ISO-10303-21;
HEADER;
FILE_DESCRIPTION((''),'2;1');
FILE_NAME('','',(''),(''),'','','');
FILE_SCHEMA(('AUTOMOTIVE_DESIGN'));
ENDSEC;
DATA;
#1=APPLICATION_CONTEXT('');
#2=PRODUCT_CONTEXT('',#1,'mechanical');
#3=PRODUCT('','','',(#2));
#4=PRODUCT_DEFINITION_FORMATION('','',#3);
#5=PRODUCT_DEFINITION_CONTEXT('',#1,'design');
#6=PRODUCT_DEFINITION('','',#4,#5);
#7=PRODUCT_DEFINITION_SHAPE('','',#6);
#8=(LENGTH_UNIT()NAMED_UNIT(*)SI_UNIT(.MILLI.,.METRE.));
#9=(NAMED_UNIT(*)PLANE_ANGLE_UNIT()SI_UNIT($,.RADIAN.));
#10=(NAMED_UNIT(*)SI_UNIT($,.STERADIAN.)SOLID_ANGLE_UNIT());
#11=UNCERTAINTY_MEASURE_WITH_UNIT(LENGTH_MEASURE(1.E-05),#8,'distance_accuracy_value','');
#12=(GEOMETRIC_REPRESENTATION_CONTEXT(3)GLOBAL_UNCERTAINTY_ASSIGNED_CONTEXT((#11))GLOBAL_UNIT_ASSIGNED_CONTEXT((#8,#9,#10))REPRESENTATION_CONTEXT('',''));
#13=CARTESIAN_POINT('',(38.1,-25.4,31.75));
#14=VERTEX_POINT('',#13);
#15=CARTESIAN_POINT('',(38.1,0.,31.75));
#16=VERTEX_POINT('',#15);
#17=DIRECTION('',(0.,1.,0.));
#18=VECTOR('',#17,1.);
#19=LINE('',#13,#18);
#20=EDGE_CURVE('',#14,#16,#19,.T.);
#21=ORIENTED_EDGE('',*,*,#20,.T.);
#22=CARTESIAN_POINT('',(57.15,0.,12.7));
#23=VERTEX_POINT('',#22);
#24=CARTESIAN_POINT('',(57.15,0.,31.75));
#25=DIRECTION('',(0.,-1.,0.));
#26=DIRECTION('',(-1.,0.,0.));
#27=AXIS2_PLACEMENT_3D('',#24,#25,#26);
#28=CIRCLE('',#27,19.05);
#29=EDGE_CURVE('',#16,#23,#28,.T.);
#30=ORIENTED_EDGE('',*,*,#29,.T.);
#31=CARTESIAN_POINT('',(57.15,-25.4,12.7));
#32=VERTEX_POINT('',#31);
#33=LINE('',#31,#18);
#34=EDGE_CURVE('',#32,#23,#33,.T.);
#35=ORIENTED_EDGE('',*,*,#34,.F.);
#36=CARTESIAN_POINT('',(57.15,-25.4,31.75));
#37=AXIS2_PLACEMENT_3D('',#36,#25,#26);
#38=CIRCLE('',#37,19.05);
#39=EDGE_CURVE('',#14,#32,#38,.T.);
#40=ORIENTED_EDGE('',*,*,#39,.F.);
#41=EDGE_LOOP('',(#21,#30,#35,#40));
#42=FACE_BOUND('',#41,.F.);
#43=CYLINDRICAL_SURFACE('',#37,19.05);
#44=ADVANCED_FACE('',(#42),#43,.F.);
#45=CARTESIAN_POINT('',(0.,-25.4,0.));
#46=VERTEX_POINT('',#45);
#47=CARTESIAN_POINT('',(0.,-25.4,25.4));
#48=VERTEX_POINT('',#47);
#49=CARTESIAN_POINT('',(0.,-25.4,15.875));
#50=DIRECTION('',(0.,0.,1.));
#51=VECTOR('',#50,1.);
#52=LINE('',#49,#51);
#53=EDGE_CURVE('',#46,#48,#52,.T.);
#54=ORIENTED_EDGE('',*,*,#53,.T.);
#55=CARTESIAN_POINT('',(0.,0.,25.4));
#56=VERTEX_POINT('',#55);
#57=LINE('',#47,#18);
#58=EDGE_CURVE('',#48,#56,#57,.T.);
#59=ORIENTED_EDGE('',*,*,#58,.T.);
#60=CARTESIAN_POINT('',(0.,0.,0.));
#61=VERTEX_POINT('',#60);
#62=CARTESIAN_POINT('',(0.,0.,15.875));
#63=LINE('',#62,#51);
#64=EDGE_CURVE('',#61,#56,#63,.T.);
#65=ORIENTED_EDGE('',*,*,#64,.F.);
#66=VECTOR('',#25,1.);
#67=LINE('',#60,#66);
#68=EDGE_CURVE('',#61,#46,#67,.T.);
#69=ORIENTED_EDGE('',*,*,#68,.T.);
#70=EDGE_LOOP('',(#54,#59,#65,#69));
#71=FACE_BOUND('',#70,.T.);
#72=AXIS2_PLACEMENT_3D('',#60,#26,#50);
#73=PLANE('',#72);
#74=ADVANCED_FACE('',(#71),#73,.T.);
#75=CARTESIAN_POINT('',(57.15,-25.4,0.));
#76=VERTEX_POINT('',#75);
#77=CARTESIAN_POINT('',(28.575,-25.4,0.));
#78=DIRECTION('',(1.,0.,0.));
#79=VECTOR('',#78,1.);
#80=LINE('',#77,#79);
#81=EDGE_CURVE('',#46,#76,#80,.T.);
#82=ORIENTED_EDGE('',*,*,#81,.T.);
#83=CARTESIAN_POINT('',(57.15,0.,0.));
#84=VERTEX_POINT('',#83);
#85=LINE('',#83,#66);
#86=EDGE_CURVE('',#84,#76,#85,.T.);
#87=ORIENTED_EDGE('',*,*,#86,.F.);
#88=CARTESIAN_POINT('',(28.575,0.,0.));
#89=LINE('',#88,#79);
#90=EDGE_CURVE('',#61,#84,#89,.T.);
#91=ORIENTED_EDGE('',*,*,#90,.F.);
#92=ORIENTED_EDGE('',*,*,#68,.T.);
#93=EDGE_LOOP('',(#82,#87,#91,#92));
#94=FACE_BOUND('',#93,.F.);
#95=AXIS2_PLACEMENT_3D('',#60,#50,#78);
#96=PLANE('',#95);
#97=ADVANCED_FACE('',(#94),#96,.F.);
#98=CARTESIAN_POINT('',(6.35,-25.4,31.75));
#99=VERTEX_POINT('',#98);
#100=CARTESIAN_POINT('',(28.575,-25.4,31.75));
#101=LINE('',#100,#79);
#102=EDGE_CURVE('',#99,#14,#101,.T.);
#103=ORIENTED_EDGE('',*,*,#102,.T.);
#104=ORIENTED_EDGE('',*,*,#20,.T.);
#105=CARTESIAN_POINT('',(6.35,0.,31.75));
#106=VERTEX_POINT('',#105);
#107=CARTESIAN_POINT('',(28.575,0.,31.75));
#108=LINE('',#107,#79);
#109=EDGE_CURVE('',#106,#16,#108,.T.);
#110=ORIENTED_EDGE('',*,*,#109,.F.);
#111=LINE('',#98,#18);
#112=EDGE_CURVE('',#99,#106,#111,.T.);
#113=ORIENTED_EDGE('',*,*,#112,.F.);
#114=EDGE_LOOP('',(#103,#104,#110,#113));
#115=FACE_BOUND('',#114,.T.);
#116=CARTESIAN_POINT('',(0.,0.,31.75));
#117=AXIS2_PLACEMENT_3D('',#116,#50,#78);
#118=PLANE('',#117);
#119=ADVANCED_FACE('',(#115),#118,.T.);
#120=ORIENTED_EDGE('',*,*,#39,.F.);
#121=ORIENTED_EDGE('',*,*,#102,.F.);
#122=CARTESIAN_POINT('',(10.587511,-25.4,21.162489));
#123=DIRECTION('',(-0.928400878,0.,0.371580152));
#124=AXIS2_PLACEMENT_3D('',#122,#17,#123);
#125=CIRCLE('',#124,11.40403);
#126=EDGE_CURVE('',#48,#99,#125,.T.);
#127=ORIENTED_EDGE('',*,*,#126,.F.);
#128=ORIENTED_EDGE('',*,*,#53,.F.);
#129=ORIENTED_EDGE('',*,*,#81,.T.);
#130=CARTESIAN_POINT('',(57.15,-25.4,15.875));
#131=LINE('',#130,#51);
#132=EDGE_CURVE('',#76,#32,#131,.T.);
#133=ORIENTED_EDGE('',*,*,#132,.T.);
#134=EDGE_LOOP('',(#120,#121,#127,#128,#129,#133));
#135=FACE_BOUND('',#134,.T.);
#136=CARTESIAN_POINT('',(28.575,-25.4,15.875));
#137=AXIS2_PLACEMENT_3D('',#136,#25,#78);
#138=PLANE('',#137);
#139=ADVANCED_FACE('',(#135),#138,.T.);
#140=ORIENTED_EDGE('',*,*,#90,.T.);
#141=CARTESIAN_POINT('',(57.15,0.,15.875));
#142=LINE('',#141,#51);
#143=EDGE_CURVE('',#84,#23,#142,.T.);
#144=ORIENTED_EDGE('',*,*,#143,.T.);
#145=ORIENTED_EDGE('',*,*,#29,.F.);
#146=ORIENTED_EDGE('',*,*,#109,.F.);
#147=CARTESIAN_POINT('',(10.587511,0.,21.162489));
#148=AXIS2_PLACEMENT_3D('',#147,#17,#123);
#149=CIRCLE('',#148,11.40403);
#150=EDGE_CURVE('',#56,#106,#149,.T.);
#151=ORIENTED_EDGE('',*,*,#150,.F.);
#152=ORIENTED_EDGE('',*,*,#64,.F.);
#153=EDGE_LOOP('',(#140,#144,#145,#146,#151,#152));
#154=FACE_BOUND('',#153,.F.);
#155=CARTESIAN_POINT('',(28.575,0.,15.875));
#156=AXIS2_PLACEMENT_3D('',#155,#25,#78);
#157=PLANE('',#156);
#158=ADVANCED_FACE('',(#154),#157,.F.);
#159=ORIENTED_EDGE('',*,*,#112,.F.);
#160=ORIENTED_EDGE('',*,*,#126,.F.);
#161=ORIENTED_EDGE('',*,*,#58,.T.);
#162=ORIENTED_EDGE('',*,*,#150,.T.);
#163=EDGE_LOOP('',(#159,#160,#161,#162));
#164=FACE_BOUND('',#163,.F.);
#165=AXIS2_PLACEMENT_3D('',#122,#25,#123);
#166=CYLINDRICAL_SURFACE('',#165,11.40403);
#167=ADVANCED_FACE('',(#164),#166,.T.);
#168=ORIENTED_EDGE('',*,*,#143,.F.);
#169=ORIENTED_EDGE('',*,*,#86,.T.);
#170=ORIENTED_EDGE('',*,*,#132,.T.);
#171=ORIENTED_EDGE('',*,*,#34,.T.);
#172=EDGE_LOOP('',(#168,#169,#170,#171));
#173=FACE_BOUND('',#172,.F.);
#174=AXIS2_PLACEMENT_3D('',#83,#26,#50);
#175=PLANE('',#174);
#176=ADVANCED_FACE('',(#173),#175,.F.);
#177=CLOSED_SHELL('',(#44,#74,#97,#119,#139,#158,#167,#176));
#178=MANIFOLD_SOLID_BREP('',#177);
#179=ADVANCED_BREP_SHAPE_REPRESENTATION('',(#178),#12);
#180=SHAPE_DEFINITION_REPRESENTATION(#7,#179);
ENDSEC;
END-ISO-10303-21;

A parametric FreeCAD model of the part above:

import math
import FreeCAD as App
import Part
import Sketcher

V = App.Vector
Q = App.Units.Quantity

doc = App.newDocument("Part")
body = doc.addObject("PartDesign::Body", "Body")

sketch1 = body.newObject("Sketcher::SketchObject", "Sketch")
sketch1.AttachmentSupport = (doc.getObject("XZ_Plane"), [""])
sketch1.MapMode = "FlatFace"
sketch1.addGeometry(Part.LineSegment(V(0, 32, 0), V(0, 0, 0)), False)
sketch1.addGeometry(Part.LineSegment(V(0, 0, 0), V(57, 0, 0)), False)
sketch1.addGeometry(Part.LineSegment(V(57, 0, 0), V(57, 32, 0)), False)
sketch1.addGeometry(Part.LineSegment(V(57, 32, 0), V(0, 32, 0)), False)
sketch1.addConstraint(Sketcher.Constraint("Coincident", 0, 2, 1, 1))
sketch1.addConstraint(Sketcher.Constraint("Coincident", 1, 2, 2, 1))
sketch1.addConstraint(Sketcher.Constraint("Coincident", 2, 2, 3, 1))
sketch1.addConstraint(Sketcher.Constraint("Coincident", 3, 2, 0, 1))
sketch1.addConstraint(Sketcher.Constraint("Vertical", 0))
sketch1.addConstraint(Sketcher.Constraint("Horizontal", 1))
sketch1.addConstraint(Sketcher.Constraint("Vertical", 2))
sketch1.addConstraint(Sketcher.Constraint("Horizontal", 3))
sketch1.addConstraint(Sketcher.Constraint("Coincident", 0, 2, -1, 1))
sketch1.addConstraint(Sketcher.Constraint("DistanceX", 1, 1, 1, 2, Q("2.25 in")))
sketch1.addConstraint(Sketcher.Constraint("DistanceY", 0, 2, 0, 1, Q("1.25 in")))
pad1 = body.newObject("PartDesign::Pad", "Pad")
pad1.Profile = sketch1
pad1.Length = Q("1 in")

sketch2 = body.newObject("Sketcher::SketchObject", "Sketch001")
sketch2.AttachmentSupport = (doc.getObject("XZ_Plane"), [""])
sketch2.MapMode = "FlatFace"
sketch2.AttachmentOffset = App.Placement(V(0, 0, 1 * 25.4), App.Rotation())
sketch2.addGeometry(Part.LineSegment(V(57, 32, 0), V(38, 32, 0)), False)
sketch2.addGeometry(Part.ArcOfCircle(Part.Circle(V(57, 32, 0), V(0, 0, 1), 19), math.radians(180), math.radians(270)), False)
sketch2.addGeometry(Part.LineSegment(V(57, 13, 0), V(57, 32, 0)), False)
sketch2.addGeometry(Part.ArcOfCircle(Part.Circle(V(11, 21, 0), V(0, 0, 1), 11), math.radians(112), math.radians(158)), False)
sketch2.addGeometry(Part.LineSegment(V(6, 32, 0), V(0, 32, 0)), False)
sketch2.addGeometry(Part.LineSegment(V(0, 32, 0), V(0, 25, 0)), False)
sketch2.addConstraint(Sketcher.Constraint("Coincident", 0, 2, 1, 1))
sketch2.addConstraint(Sketcher.Constraint("Coincident", 1, 2, 2, 1))
sketch2.addConstraint(Sketcher.Constraint("Coincident", 2, 2, 0, 1))
sketch2.addConstraint(Sketcher.Constraint("Coincident", 3, 1, 4, 1))
sketch2.addConstraint(Sketcher.Constraint("Coincident", 4, 2, 5, 1))
sketch2.addConstraint(Sketcher.Constraint("Coincident", 5, 2, 3, 2))
sketch2.addConstraint(Sketcher.Constraint("Horizontal", 0))
sketch2.addConstraint(Sketcher.Constraint("Vertical", 2))
sketch2.addConstraint(Sketcher.Constraint("Horizontal", 4))
sketch2.addConstraint(Sketcher.Constraint("Vertical", 5))
sketch2.addConstraint(Sketcher.Constraint("Coincident", 2, 2, 1, 3))
sketch2.addConstraint(Sketcher.Constraint("PointOnObject", 4, 2, -2))
sketch2.addConstraint(Sketcher.Constraint("Horizontal", 2, 2, 3, 1))
sketch2.addConstraint(Sketcher.Constraint("Equal", 4, 5))
sketch2.addConstraint(Sketcher.Constraint("Radius", 1, Q("0.75 in")))
sketch2.addConstraint(Sketcher.Constraint("DistanceY", -1, 1, 5, 2, Q("1 in")))
sketch2.addConstraint(Sketcher.Constraint("DistanceX", 3, 1, 1, 3, Q("2 in")))
sketch2.addConstraint(Sketcher.Constraint("DistanceX", 4, 2, 4, 1, Q("0.25 in")))
sketch2.addConstraint(Sketcher.Constraint("Radius", 3, Q("11.40403 mm")))
pocket1 = body.newObject("PartDesign::Pocket", "Pocket")
pocket1.Profile = sketch2
pocket1.Length = Q("1 in")

doc.recompute()
